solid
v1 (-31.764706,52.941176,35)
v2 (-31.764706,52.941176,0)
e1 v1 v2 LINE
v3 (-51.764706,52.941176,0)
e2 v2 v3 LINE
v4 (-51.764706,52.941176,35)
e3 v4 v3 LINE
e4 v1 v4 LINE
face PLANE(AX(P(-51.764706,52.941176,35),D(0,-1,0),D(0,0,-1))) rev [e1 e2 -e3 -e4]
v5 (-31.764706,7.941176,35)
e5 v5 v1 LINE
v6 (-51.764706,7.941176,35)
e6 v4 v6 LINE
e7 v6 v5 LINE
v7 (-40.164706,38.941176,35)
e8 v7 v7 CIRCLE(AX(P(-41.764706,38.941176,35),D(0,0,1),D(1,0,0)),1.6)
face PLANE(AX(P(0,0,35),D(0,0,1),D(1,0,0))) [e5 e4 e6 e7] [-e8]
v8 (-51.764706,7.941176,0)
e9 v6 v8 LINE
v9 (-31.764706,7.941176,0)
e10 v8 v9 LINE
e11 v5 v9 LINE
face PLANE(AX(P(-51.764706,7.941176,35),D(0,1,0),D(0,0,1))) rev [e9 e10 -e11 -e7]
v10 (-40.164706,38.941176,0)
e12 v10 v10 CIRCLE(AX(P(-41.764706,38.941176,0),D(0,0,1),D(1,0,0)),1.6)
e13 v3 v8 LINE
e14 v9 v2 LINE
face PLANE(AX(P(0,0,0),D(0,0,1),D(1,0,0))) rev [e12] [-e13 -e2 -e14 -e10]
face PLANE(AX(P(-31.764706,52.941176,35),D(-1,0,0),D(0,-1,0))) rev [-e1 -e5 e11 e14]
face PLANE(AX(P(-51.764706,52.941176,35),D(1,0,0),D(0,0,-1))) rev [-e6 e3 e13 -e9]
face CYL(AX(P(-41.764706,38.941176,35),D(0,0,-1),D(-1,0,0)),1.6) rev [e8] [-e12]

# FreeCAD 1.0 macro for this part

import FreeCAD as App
import Part
import Sketcher
Q = App.Units.Quantity

doc = App.newDocument("Part")
body = doc.addObject("PartDesign::Body", "Body")

sketch1 = body.newObject("Sketcher::SketchObject", "Sketch")
sketch1.AttachmentSupport = (doc.getObject("XY_Plane"), [""])
sketch1.MapMode = "FlatFace"
sketch1.addGeometry(Part.LineSegment(App.Vector(-51.764706, 52.941176, 0), App.Vector(-51.764706, 7.941176, 0)), False)
sketch1.addGeometry(Part.LineSegment(App.Vector(-51.764706, 7.941176, 0), App.Vector(-31.764706, 7.941176, 0)), False)
sketch1.addGeometry(Part.LineSegment(App.Vector(-31.764706, 7.941176, 0), App.Vector(-31.764706, 52.941176, 0)), False)
sketch1.addGeometry(Part.LineSegment(App.Vector(-31.764706, 52.941176, 0), App.Vector(-51.764706, 52.941176, 0)), False)
sketch1.addGeometry(Part.Circle(App.Vector(-41.764706, 38.941176, 0), App.Vector(0, 0, 1), 1.6), False)
sketch1.addConstraint(Sketcher.Constraint("Coincident", 0, 2, 1, 1))
sketch1.addConstraint(Sketcher.Constraint("Coincident", 1, 2, 2, 1))
sketch1.addConstraint(Sketcher.Constraint("Coincident", 2, 2, 3, 1))
sketch1.addConstraint(Sketcher.Constraint("Coincident", 3, 2, 0, 1))
sketch1.addConstraint(Sketcher.Constraint("Vertical", 0))
sketch1.addConstraint(Sketcher.Constraint("Horizontal", 1))
sketch1.addConstraint(Sketcher.Constraint("Vertical", 2))
sketch1.addConstraint(Sketcher.Constraint("Horizontal", 3))
sketch1.addConstraint(Sketcher.Constraint("Diameter", 4, Q("3.2 mm")))
sketch1.addConstraint(Sketcher.Constraint("DistanceX", 1, 1, 1, 2, Q("20 mm")))
sketch1.addConstraint(Sketcher.Constraint("DistanceY", 0, 2, 0, 1, Q("45 mm")))
sketch1.addConstraint(Sketcher.Constraint("DistanceX", 0, 2, 4, 3, Q("10 mm")))
sketch1.addConstraint(Sketcher.Constraint("DistanceY", 0, 2, 4, 3, Q("31 mm")))
sketch1.addConstraint(Sketcher.Constraint("DistanceX", 4, 3, -1, 1, Q("41.764706 mm")))
sketch1.addConstraint(Sketcher.Constraint("DistanceY", -1, 1, 4, 3, Q("38.941176 mm")))
pad1 = body.newObject("PartDesign::Pad", "Pad")
pad1.Profile = sketch1
pad1.Length = 35

doc.recompute()
